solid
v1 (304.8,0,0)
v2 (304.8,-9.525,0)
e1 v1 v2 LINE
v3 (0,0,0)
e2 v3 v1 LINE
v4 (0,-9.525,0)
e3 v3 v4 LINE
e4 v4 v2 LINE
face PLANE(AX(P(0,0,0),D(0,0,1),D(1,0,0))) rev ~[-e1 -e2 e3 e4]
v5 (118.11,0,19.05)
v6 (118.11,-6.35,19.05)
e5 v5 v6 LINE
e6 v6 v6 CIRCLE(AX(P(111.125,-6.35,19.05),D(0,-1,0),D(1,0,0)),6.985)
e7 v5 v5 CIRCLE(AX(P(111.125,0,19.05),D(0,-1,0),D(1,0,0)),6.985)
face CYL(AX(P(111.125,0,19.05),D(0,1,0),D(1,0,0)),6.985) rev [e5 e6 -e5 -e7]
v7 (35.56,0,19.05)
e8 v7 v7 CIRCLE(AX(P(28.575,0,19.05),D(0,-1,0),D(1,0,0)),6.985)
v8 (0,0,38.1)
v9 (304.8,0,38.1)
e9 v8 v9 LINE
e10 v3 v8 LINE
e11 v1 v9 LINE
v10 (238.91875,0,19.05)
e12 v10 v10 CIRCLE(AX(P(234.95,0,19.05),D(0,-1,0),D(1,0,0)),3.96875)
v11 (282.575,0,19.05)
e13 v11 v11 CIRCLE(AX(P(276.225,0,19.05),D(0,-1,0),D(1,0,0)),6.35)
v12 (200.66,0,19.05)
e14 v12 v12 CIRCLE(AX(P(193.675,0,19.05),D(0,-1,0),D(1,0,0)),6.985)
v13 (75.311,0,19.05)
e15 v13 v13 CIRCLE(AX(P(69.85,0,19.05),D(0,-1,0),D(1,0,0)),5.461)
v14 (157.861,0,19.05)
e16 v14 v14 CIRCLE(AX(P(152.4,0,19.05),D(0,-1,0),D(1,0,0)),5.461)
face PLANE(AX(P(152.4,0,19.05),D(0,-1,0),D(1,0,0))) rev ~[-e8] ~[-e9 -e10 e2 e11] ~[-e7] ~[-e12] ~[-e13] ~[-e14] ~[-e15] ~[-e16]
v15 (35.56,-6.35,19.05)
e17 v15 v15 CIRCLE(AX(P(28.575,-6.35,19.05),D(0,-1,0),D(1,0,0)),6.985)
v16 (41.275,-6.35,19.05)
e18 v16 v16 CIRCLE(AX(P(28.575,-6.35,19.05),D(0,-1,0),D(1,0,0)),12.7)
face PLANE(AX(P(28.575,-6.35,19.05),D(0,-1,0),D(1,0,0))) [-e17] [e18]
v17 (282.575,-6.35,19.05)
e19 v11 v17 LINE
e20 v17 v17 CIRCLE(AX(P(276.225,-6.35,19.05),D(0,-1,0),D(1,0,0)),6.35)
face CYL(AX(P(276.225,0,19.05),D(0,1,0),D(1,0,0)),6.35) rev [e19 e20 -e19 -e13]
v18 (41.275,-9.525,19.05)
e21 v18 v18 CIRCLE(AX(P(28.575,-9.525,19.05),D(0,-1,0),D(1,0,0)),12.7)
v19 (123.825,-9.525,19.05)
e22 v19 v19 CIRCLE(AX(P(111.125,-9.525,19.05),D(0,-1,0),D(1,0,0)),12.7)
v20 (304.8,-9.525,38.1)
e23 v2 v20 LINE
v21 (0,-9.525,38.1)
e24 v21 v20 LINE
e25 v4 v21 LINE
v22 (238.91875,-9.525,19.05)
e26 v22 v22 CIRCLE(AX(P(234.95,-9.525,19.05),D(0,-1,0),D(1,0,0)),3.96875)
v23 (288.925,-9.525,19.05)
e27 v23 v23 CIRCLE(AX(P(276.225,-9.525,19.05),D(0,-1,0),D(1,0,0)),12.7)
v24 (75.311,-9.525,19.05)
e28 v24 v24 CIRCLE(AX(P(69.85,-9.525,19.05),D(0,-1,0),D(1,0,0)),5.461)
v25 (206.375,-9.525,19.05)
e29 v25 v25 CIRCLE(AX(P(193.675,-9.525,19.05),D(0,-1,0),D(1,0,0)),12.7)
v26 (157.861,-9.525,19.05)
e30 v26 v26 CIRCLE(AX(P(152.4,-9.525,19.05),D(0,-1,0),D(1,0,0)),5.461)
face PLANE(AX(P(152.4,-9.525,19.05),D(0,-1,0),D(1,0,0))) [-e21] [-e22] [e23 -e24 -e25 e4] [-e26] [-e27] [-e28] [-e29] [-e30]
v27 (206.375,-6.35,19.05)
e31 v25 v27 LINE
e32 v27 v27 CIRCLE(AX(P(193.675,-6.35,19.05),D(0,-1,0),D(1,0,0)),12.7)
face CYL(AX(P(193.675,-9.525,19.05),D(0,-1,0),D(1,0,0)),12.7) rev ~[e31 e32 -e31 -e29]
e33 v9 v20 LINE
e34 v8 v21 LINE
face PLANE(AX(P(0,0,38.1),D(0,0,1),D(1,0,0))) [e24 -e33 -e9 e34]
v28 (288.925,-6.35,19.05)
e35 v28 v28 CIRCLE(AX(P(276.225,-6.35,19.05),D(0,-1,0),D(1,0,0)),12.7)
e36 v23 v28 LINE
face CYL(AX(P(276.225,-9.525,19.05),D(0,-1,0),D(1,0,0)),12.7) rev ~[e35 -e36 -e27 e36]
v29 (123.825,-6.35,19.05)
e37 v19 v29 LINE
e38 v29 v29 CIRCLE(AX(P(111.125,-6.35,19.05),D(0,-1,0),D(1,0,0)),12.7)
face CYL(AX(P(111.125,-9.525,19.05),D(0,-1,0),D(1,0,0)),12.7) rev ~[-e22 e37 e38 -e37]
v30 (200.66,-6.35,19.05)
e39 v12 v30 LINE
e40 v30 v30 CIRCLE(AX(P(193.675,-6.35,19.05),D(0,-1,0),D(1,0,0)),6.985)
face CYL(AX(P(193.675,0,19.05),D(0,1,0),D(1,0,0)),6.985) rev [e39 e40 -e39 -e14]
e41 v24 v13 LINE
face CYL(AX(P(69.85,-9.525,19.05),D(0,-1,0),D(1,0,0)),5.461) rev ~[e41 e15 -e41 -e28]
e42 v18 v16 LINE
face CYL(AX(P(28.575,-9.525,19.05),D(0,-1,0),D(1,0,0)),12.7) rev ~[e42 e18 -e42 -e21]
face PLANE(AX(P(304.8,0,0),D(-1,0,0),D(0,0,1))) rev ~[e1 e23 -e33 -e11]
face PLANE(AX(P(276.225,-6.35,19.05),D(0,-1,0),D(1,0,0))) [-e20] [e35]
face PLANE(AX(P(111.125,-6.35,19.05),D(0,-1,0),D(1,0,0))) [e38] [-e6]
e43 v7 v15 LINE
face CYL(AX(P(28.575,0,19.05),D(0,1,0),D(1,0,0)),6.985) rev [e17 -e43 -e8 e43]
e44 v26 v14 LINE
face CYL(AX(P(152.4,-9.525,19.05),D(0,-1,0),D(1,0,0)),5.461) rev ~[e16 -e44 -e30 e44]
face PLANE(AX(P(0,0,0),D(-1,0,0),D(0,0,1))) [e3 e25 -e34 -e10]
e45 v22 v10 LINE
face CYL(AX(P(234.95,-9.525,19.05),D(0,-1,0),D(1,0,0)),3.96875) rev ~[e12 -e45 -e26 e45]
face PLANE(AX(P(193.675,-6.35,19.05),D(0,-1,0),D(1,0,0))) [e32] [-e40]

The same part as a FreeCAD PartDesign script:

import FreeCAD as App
import Part
import Sketcher
Q = App.Units.Quantity


def add_polygon(sketch, points):
    """Adds a closed chain of lines whose ends are joined by coincident constraints."""
    first, n = sketch.GeometryCount, len(points)
    for a, b in zip(points, points[1:] + points[:1]):
        sketch.addGeometry(Part.LineSegment(App.Vector(*a, 0), App.Vector(*b, 0)), False)
    for i in range(n):
        sketch.addConstraint(Sketcher.Constraint("Coincident", first + i, 2, first + (i + 1) % n, 1))

doc = App.newDocument("Part")
body = doc.addObject("PartDesign::Body", "Body")

# Sketch on XZ plane
sketch1 = doc.addObject("Sketcher::SketchObject", "Sketch")
body.addObject(sketch1)
sketch1.AttachmentSupport = (doc.XZ_Plane, [""])
sketch1.MapMode = "FlatFace"
add_polygon(sketch1, [(0, 38.1), (0, 0), (304.8, 0), (304.8, 38.1)])  # lines 0-3
sketch1.addGeometry(Part.Circle(App.Vector(28.575, 19.05, 0), App.Vector(0, 0, 1), 6.985), False)  # 4
sketch1.addGeometry(Part.Circle(App.Vector(111.125, 19.05, 0), App.Vector(0, 0, 1), 6.985), False)  # 5
sketch1.addGeometry(Part.Circle(App.Vector(193.675, 19.05, 0), App.Vector(0, 0, 1), 6.985), False)  # 6
sketch1.addGeometry(Part.Circle(App.Vector(276.225, 19.05, 0), App.Vector(0, 0, 1), 6.35), False)  # 7
sketch1.addConstraint([
    Sketcher.Constraint("Vertical", 0),
    Sketcher.Constraint("Horizontal", 1),
    Sketcher.Constraint("Vertical", 2),
    Sketcher.Constraint("Horizontal", 3),
    Sketcher.Constraint("Coincident", 0, 2, -1, 1),
    Sketcher.Constraint("Equal", 4, 5),
    Sketcher.Constraint("Equal", 5, 6),
    Sketcher.Constraint("Horizontal", 4, 3, 5, 3),
    Sketcher.Constraint("Horizontal", 5, 3, 6, 3),
    Sketcher.Constraint("Horizontal", 6, 3, 7, 3),
    Sketcher.Constraint("Diameter", 7, Q("0.5 in")),
    Sketcher.Constraint("Diameter", 4, Q("0.55 in")),
    Sketcher.Constraint("DistanceX", 1, 1, 1, 2, Q("12 in")),
    Sketcher.Constraint("DistanceY", 0, 2, 0, 1, Q("1.5 in")),
    Sketcher.Constraint("DistanceX", 4, 3, 6, 3, Q("6.5 in")),
    Sketcher.Constraint("DistanceX", 5, 3, 7, 3, Q("6.5 in")),
    Sketcher.Constraint("DistanceY", -1, 1, 4, 3, Q("0.75 in")),
    Sketcher.Constraint("DistanceX", 4, 3, 5, 3, Q("3.25 in")),
    Sketcher.Constraint("DistanceX", -1, 1, 4, 3, Q("1.125 in")),
])
pad1 = doc.addObject("PartDesign::Pad", "Pad")
body.addObject(pad1)
pad1.Profile = sketch1
pad1.Length = Q("0.375 in")

# Sketch on XZ plane
sketch2 = doc.addObject("Sketcher::SketchObject", "Sketch001")
body.addObject(sketch2)
sketch2.AttachmentSupport = (doc.XZ_Plane, [""])
sketch2.MapMode = "FlatFace"
sketch2.AttachmentOffset = App.Placement(App.Vector(0, 0, 0.375 * 25.4), App.Rotation())
sketch2.addGeometry([
    Part.Circle(App.Vector(69.85, 19.05, 0), App.Vector(0, 0, 1), 5.461),
    Part.Circle(App.Vector(152.4, 19.05, 0), App.Vector(0, 0, 1), 5.461),
    Part.Circle(App.Vector(234.95, 19.05, 0), App.Vector(0, 0, 1), 3.96875),
], False)
sketch2.addConstraint([
    Sketcher.Constraint("Equal", 0, 1),
    Sketcher.Constraint("Horizontal", 0, 3, 1, 3),
    Sketcher.Constraint("Horizontal", 1, 3, 2, 3),
    Sketcher.Constraint("Diameter", 0, Q("0.43 in")),
    Sketcher.Constraint("Diameter", 2, Q("0.3125 in")),
    Sketcher.Constraint("DistanceX", -1, 1, 1, 3, Q("6 in")),
    Sketcher.Constraint("DistanceX", 0, 3, 2, 3, Q("6.5 in")),
    Sketcher.Constraint("DistanceX", -1, 1, 0, 3, Q("2.75 in")),
    Sketcher.Constraint("DistanceY", -1, 1, 0, 3, Q("0.75 in")),
])
pocket1 = doc.addObject("PartDesign::Pocket", "Pocket")
body.addObject(pocket1)
pocket1.Profile = sketch2
pocket1.Type = "ThroughAll"

# Sketch on XZ plane
sketch3 = doc.addObject("Sketcher::SketchObject", "Sketch002")
body.addObject(sketch3)
sketch3.AttachmentSupport = (doc.XZ_Plane, [""])
sketch3.MapMode = "FlatFace"
sketch3.AttachmentOffset = App.Placement(App.Vector(0, 0, 0.375 * 25.4), App.Rotation())
sketch3.addGeometry([
    Part.Circle(App.Vector(28.575, 19.05, 0), App.Vector(0, 0, 1), 12.7),  # 0
    Part.Circle(App.Vector(28.575, 19.05, 0), App.Vector(0, 0, 1), 6.985),  # 1
    Part.Circle(App.Vector(111.125, 19.05, 0), App.Vector(0, 0, 1), 12.7),  # 2
    Part.Circle(App.Vector(111.125, 19.05, 0), App.Vector(0, 0, 1), 6.985),  # 3
    Part.Circle(App.Vector(193.675, 19.05, 0), App.Vector(0, 0, 1), 12.7),  # 4
    Part.Circle(App.Vector(193.675, 19.05, 0), App.Vector(0, 0, 1), 6.985),  # 5
    Part.Circle(App.Vector(276.225, 19.05, 0), App.Vector(0, 0, 1), 12.7),  # 6
    Part.Circle(App.Vector(276.225, 19.05, 0), App.Vector(0, 0, 1), 6.35),  # 7
], False)
sketch3.addConstraint([
    Sketcher.Constraint("Coincident", 1, 3, 0, 3),
    Sketcher.Constraint("Coincident", 3, 3, 2, 3),
    Sketcher.Constraint("Coincident", 5, 3, 4, 3),
    Sketcher.Constraint("Coincident", 7, 3, 6, 3),
    Sketcher.Constraint("Equal", 0, 2),
    Sketcher.Constraint("Equal", 1, 3),
    Sketcher.Constraint("Equal", 2, 4),
    Sketcher.Constraint("Equal", 3, 5),
    Sketcher.Constraint("Equal", 4, 6),
    Sketcher.Constraint("Horizontal", 1, 3, 2, 3),
    Sketcher.Constraint("Horizontal", 3, 3, 4, 3),
    Sketcher.Constraint("Horizontal", 5, 3, 6, 3),
    Sketcher.Constraint("Diameter", 0, Q("1 in")),
    Sketcher.Constraint("Diameter", 7, Q("0.5 in")),
    Sketcher.Constraint("Diameter", 1, Q("0.55 in")),
    Sketcher.Constraint("DistanceX", 0, 3, 4, 3, Q("6.5 in")),
    Sketcher.Constraint("DistanceX", 2, 3, 6, 3, Q("6.5 in")),
    Sketcher.Constraint("DistanceY", -1, 1, 0, 3, Q("0.75 in")),
    Sketcher.Constraint("DistanceX", 0, 3, 2, 3, Q("3.25 in")),
    Sketcher.Constraint("DistanceX", -1, 1, 0, 3, Q("1.125 in")),
])
pocket2 = doc.addObject("PartDesign::Pocket", "Pocket001")
body.addObject(pocket2)
pocket2.Profile = sketch3
pocket2.Length = Q("0.125 in")

doc.recompute()
